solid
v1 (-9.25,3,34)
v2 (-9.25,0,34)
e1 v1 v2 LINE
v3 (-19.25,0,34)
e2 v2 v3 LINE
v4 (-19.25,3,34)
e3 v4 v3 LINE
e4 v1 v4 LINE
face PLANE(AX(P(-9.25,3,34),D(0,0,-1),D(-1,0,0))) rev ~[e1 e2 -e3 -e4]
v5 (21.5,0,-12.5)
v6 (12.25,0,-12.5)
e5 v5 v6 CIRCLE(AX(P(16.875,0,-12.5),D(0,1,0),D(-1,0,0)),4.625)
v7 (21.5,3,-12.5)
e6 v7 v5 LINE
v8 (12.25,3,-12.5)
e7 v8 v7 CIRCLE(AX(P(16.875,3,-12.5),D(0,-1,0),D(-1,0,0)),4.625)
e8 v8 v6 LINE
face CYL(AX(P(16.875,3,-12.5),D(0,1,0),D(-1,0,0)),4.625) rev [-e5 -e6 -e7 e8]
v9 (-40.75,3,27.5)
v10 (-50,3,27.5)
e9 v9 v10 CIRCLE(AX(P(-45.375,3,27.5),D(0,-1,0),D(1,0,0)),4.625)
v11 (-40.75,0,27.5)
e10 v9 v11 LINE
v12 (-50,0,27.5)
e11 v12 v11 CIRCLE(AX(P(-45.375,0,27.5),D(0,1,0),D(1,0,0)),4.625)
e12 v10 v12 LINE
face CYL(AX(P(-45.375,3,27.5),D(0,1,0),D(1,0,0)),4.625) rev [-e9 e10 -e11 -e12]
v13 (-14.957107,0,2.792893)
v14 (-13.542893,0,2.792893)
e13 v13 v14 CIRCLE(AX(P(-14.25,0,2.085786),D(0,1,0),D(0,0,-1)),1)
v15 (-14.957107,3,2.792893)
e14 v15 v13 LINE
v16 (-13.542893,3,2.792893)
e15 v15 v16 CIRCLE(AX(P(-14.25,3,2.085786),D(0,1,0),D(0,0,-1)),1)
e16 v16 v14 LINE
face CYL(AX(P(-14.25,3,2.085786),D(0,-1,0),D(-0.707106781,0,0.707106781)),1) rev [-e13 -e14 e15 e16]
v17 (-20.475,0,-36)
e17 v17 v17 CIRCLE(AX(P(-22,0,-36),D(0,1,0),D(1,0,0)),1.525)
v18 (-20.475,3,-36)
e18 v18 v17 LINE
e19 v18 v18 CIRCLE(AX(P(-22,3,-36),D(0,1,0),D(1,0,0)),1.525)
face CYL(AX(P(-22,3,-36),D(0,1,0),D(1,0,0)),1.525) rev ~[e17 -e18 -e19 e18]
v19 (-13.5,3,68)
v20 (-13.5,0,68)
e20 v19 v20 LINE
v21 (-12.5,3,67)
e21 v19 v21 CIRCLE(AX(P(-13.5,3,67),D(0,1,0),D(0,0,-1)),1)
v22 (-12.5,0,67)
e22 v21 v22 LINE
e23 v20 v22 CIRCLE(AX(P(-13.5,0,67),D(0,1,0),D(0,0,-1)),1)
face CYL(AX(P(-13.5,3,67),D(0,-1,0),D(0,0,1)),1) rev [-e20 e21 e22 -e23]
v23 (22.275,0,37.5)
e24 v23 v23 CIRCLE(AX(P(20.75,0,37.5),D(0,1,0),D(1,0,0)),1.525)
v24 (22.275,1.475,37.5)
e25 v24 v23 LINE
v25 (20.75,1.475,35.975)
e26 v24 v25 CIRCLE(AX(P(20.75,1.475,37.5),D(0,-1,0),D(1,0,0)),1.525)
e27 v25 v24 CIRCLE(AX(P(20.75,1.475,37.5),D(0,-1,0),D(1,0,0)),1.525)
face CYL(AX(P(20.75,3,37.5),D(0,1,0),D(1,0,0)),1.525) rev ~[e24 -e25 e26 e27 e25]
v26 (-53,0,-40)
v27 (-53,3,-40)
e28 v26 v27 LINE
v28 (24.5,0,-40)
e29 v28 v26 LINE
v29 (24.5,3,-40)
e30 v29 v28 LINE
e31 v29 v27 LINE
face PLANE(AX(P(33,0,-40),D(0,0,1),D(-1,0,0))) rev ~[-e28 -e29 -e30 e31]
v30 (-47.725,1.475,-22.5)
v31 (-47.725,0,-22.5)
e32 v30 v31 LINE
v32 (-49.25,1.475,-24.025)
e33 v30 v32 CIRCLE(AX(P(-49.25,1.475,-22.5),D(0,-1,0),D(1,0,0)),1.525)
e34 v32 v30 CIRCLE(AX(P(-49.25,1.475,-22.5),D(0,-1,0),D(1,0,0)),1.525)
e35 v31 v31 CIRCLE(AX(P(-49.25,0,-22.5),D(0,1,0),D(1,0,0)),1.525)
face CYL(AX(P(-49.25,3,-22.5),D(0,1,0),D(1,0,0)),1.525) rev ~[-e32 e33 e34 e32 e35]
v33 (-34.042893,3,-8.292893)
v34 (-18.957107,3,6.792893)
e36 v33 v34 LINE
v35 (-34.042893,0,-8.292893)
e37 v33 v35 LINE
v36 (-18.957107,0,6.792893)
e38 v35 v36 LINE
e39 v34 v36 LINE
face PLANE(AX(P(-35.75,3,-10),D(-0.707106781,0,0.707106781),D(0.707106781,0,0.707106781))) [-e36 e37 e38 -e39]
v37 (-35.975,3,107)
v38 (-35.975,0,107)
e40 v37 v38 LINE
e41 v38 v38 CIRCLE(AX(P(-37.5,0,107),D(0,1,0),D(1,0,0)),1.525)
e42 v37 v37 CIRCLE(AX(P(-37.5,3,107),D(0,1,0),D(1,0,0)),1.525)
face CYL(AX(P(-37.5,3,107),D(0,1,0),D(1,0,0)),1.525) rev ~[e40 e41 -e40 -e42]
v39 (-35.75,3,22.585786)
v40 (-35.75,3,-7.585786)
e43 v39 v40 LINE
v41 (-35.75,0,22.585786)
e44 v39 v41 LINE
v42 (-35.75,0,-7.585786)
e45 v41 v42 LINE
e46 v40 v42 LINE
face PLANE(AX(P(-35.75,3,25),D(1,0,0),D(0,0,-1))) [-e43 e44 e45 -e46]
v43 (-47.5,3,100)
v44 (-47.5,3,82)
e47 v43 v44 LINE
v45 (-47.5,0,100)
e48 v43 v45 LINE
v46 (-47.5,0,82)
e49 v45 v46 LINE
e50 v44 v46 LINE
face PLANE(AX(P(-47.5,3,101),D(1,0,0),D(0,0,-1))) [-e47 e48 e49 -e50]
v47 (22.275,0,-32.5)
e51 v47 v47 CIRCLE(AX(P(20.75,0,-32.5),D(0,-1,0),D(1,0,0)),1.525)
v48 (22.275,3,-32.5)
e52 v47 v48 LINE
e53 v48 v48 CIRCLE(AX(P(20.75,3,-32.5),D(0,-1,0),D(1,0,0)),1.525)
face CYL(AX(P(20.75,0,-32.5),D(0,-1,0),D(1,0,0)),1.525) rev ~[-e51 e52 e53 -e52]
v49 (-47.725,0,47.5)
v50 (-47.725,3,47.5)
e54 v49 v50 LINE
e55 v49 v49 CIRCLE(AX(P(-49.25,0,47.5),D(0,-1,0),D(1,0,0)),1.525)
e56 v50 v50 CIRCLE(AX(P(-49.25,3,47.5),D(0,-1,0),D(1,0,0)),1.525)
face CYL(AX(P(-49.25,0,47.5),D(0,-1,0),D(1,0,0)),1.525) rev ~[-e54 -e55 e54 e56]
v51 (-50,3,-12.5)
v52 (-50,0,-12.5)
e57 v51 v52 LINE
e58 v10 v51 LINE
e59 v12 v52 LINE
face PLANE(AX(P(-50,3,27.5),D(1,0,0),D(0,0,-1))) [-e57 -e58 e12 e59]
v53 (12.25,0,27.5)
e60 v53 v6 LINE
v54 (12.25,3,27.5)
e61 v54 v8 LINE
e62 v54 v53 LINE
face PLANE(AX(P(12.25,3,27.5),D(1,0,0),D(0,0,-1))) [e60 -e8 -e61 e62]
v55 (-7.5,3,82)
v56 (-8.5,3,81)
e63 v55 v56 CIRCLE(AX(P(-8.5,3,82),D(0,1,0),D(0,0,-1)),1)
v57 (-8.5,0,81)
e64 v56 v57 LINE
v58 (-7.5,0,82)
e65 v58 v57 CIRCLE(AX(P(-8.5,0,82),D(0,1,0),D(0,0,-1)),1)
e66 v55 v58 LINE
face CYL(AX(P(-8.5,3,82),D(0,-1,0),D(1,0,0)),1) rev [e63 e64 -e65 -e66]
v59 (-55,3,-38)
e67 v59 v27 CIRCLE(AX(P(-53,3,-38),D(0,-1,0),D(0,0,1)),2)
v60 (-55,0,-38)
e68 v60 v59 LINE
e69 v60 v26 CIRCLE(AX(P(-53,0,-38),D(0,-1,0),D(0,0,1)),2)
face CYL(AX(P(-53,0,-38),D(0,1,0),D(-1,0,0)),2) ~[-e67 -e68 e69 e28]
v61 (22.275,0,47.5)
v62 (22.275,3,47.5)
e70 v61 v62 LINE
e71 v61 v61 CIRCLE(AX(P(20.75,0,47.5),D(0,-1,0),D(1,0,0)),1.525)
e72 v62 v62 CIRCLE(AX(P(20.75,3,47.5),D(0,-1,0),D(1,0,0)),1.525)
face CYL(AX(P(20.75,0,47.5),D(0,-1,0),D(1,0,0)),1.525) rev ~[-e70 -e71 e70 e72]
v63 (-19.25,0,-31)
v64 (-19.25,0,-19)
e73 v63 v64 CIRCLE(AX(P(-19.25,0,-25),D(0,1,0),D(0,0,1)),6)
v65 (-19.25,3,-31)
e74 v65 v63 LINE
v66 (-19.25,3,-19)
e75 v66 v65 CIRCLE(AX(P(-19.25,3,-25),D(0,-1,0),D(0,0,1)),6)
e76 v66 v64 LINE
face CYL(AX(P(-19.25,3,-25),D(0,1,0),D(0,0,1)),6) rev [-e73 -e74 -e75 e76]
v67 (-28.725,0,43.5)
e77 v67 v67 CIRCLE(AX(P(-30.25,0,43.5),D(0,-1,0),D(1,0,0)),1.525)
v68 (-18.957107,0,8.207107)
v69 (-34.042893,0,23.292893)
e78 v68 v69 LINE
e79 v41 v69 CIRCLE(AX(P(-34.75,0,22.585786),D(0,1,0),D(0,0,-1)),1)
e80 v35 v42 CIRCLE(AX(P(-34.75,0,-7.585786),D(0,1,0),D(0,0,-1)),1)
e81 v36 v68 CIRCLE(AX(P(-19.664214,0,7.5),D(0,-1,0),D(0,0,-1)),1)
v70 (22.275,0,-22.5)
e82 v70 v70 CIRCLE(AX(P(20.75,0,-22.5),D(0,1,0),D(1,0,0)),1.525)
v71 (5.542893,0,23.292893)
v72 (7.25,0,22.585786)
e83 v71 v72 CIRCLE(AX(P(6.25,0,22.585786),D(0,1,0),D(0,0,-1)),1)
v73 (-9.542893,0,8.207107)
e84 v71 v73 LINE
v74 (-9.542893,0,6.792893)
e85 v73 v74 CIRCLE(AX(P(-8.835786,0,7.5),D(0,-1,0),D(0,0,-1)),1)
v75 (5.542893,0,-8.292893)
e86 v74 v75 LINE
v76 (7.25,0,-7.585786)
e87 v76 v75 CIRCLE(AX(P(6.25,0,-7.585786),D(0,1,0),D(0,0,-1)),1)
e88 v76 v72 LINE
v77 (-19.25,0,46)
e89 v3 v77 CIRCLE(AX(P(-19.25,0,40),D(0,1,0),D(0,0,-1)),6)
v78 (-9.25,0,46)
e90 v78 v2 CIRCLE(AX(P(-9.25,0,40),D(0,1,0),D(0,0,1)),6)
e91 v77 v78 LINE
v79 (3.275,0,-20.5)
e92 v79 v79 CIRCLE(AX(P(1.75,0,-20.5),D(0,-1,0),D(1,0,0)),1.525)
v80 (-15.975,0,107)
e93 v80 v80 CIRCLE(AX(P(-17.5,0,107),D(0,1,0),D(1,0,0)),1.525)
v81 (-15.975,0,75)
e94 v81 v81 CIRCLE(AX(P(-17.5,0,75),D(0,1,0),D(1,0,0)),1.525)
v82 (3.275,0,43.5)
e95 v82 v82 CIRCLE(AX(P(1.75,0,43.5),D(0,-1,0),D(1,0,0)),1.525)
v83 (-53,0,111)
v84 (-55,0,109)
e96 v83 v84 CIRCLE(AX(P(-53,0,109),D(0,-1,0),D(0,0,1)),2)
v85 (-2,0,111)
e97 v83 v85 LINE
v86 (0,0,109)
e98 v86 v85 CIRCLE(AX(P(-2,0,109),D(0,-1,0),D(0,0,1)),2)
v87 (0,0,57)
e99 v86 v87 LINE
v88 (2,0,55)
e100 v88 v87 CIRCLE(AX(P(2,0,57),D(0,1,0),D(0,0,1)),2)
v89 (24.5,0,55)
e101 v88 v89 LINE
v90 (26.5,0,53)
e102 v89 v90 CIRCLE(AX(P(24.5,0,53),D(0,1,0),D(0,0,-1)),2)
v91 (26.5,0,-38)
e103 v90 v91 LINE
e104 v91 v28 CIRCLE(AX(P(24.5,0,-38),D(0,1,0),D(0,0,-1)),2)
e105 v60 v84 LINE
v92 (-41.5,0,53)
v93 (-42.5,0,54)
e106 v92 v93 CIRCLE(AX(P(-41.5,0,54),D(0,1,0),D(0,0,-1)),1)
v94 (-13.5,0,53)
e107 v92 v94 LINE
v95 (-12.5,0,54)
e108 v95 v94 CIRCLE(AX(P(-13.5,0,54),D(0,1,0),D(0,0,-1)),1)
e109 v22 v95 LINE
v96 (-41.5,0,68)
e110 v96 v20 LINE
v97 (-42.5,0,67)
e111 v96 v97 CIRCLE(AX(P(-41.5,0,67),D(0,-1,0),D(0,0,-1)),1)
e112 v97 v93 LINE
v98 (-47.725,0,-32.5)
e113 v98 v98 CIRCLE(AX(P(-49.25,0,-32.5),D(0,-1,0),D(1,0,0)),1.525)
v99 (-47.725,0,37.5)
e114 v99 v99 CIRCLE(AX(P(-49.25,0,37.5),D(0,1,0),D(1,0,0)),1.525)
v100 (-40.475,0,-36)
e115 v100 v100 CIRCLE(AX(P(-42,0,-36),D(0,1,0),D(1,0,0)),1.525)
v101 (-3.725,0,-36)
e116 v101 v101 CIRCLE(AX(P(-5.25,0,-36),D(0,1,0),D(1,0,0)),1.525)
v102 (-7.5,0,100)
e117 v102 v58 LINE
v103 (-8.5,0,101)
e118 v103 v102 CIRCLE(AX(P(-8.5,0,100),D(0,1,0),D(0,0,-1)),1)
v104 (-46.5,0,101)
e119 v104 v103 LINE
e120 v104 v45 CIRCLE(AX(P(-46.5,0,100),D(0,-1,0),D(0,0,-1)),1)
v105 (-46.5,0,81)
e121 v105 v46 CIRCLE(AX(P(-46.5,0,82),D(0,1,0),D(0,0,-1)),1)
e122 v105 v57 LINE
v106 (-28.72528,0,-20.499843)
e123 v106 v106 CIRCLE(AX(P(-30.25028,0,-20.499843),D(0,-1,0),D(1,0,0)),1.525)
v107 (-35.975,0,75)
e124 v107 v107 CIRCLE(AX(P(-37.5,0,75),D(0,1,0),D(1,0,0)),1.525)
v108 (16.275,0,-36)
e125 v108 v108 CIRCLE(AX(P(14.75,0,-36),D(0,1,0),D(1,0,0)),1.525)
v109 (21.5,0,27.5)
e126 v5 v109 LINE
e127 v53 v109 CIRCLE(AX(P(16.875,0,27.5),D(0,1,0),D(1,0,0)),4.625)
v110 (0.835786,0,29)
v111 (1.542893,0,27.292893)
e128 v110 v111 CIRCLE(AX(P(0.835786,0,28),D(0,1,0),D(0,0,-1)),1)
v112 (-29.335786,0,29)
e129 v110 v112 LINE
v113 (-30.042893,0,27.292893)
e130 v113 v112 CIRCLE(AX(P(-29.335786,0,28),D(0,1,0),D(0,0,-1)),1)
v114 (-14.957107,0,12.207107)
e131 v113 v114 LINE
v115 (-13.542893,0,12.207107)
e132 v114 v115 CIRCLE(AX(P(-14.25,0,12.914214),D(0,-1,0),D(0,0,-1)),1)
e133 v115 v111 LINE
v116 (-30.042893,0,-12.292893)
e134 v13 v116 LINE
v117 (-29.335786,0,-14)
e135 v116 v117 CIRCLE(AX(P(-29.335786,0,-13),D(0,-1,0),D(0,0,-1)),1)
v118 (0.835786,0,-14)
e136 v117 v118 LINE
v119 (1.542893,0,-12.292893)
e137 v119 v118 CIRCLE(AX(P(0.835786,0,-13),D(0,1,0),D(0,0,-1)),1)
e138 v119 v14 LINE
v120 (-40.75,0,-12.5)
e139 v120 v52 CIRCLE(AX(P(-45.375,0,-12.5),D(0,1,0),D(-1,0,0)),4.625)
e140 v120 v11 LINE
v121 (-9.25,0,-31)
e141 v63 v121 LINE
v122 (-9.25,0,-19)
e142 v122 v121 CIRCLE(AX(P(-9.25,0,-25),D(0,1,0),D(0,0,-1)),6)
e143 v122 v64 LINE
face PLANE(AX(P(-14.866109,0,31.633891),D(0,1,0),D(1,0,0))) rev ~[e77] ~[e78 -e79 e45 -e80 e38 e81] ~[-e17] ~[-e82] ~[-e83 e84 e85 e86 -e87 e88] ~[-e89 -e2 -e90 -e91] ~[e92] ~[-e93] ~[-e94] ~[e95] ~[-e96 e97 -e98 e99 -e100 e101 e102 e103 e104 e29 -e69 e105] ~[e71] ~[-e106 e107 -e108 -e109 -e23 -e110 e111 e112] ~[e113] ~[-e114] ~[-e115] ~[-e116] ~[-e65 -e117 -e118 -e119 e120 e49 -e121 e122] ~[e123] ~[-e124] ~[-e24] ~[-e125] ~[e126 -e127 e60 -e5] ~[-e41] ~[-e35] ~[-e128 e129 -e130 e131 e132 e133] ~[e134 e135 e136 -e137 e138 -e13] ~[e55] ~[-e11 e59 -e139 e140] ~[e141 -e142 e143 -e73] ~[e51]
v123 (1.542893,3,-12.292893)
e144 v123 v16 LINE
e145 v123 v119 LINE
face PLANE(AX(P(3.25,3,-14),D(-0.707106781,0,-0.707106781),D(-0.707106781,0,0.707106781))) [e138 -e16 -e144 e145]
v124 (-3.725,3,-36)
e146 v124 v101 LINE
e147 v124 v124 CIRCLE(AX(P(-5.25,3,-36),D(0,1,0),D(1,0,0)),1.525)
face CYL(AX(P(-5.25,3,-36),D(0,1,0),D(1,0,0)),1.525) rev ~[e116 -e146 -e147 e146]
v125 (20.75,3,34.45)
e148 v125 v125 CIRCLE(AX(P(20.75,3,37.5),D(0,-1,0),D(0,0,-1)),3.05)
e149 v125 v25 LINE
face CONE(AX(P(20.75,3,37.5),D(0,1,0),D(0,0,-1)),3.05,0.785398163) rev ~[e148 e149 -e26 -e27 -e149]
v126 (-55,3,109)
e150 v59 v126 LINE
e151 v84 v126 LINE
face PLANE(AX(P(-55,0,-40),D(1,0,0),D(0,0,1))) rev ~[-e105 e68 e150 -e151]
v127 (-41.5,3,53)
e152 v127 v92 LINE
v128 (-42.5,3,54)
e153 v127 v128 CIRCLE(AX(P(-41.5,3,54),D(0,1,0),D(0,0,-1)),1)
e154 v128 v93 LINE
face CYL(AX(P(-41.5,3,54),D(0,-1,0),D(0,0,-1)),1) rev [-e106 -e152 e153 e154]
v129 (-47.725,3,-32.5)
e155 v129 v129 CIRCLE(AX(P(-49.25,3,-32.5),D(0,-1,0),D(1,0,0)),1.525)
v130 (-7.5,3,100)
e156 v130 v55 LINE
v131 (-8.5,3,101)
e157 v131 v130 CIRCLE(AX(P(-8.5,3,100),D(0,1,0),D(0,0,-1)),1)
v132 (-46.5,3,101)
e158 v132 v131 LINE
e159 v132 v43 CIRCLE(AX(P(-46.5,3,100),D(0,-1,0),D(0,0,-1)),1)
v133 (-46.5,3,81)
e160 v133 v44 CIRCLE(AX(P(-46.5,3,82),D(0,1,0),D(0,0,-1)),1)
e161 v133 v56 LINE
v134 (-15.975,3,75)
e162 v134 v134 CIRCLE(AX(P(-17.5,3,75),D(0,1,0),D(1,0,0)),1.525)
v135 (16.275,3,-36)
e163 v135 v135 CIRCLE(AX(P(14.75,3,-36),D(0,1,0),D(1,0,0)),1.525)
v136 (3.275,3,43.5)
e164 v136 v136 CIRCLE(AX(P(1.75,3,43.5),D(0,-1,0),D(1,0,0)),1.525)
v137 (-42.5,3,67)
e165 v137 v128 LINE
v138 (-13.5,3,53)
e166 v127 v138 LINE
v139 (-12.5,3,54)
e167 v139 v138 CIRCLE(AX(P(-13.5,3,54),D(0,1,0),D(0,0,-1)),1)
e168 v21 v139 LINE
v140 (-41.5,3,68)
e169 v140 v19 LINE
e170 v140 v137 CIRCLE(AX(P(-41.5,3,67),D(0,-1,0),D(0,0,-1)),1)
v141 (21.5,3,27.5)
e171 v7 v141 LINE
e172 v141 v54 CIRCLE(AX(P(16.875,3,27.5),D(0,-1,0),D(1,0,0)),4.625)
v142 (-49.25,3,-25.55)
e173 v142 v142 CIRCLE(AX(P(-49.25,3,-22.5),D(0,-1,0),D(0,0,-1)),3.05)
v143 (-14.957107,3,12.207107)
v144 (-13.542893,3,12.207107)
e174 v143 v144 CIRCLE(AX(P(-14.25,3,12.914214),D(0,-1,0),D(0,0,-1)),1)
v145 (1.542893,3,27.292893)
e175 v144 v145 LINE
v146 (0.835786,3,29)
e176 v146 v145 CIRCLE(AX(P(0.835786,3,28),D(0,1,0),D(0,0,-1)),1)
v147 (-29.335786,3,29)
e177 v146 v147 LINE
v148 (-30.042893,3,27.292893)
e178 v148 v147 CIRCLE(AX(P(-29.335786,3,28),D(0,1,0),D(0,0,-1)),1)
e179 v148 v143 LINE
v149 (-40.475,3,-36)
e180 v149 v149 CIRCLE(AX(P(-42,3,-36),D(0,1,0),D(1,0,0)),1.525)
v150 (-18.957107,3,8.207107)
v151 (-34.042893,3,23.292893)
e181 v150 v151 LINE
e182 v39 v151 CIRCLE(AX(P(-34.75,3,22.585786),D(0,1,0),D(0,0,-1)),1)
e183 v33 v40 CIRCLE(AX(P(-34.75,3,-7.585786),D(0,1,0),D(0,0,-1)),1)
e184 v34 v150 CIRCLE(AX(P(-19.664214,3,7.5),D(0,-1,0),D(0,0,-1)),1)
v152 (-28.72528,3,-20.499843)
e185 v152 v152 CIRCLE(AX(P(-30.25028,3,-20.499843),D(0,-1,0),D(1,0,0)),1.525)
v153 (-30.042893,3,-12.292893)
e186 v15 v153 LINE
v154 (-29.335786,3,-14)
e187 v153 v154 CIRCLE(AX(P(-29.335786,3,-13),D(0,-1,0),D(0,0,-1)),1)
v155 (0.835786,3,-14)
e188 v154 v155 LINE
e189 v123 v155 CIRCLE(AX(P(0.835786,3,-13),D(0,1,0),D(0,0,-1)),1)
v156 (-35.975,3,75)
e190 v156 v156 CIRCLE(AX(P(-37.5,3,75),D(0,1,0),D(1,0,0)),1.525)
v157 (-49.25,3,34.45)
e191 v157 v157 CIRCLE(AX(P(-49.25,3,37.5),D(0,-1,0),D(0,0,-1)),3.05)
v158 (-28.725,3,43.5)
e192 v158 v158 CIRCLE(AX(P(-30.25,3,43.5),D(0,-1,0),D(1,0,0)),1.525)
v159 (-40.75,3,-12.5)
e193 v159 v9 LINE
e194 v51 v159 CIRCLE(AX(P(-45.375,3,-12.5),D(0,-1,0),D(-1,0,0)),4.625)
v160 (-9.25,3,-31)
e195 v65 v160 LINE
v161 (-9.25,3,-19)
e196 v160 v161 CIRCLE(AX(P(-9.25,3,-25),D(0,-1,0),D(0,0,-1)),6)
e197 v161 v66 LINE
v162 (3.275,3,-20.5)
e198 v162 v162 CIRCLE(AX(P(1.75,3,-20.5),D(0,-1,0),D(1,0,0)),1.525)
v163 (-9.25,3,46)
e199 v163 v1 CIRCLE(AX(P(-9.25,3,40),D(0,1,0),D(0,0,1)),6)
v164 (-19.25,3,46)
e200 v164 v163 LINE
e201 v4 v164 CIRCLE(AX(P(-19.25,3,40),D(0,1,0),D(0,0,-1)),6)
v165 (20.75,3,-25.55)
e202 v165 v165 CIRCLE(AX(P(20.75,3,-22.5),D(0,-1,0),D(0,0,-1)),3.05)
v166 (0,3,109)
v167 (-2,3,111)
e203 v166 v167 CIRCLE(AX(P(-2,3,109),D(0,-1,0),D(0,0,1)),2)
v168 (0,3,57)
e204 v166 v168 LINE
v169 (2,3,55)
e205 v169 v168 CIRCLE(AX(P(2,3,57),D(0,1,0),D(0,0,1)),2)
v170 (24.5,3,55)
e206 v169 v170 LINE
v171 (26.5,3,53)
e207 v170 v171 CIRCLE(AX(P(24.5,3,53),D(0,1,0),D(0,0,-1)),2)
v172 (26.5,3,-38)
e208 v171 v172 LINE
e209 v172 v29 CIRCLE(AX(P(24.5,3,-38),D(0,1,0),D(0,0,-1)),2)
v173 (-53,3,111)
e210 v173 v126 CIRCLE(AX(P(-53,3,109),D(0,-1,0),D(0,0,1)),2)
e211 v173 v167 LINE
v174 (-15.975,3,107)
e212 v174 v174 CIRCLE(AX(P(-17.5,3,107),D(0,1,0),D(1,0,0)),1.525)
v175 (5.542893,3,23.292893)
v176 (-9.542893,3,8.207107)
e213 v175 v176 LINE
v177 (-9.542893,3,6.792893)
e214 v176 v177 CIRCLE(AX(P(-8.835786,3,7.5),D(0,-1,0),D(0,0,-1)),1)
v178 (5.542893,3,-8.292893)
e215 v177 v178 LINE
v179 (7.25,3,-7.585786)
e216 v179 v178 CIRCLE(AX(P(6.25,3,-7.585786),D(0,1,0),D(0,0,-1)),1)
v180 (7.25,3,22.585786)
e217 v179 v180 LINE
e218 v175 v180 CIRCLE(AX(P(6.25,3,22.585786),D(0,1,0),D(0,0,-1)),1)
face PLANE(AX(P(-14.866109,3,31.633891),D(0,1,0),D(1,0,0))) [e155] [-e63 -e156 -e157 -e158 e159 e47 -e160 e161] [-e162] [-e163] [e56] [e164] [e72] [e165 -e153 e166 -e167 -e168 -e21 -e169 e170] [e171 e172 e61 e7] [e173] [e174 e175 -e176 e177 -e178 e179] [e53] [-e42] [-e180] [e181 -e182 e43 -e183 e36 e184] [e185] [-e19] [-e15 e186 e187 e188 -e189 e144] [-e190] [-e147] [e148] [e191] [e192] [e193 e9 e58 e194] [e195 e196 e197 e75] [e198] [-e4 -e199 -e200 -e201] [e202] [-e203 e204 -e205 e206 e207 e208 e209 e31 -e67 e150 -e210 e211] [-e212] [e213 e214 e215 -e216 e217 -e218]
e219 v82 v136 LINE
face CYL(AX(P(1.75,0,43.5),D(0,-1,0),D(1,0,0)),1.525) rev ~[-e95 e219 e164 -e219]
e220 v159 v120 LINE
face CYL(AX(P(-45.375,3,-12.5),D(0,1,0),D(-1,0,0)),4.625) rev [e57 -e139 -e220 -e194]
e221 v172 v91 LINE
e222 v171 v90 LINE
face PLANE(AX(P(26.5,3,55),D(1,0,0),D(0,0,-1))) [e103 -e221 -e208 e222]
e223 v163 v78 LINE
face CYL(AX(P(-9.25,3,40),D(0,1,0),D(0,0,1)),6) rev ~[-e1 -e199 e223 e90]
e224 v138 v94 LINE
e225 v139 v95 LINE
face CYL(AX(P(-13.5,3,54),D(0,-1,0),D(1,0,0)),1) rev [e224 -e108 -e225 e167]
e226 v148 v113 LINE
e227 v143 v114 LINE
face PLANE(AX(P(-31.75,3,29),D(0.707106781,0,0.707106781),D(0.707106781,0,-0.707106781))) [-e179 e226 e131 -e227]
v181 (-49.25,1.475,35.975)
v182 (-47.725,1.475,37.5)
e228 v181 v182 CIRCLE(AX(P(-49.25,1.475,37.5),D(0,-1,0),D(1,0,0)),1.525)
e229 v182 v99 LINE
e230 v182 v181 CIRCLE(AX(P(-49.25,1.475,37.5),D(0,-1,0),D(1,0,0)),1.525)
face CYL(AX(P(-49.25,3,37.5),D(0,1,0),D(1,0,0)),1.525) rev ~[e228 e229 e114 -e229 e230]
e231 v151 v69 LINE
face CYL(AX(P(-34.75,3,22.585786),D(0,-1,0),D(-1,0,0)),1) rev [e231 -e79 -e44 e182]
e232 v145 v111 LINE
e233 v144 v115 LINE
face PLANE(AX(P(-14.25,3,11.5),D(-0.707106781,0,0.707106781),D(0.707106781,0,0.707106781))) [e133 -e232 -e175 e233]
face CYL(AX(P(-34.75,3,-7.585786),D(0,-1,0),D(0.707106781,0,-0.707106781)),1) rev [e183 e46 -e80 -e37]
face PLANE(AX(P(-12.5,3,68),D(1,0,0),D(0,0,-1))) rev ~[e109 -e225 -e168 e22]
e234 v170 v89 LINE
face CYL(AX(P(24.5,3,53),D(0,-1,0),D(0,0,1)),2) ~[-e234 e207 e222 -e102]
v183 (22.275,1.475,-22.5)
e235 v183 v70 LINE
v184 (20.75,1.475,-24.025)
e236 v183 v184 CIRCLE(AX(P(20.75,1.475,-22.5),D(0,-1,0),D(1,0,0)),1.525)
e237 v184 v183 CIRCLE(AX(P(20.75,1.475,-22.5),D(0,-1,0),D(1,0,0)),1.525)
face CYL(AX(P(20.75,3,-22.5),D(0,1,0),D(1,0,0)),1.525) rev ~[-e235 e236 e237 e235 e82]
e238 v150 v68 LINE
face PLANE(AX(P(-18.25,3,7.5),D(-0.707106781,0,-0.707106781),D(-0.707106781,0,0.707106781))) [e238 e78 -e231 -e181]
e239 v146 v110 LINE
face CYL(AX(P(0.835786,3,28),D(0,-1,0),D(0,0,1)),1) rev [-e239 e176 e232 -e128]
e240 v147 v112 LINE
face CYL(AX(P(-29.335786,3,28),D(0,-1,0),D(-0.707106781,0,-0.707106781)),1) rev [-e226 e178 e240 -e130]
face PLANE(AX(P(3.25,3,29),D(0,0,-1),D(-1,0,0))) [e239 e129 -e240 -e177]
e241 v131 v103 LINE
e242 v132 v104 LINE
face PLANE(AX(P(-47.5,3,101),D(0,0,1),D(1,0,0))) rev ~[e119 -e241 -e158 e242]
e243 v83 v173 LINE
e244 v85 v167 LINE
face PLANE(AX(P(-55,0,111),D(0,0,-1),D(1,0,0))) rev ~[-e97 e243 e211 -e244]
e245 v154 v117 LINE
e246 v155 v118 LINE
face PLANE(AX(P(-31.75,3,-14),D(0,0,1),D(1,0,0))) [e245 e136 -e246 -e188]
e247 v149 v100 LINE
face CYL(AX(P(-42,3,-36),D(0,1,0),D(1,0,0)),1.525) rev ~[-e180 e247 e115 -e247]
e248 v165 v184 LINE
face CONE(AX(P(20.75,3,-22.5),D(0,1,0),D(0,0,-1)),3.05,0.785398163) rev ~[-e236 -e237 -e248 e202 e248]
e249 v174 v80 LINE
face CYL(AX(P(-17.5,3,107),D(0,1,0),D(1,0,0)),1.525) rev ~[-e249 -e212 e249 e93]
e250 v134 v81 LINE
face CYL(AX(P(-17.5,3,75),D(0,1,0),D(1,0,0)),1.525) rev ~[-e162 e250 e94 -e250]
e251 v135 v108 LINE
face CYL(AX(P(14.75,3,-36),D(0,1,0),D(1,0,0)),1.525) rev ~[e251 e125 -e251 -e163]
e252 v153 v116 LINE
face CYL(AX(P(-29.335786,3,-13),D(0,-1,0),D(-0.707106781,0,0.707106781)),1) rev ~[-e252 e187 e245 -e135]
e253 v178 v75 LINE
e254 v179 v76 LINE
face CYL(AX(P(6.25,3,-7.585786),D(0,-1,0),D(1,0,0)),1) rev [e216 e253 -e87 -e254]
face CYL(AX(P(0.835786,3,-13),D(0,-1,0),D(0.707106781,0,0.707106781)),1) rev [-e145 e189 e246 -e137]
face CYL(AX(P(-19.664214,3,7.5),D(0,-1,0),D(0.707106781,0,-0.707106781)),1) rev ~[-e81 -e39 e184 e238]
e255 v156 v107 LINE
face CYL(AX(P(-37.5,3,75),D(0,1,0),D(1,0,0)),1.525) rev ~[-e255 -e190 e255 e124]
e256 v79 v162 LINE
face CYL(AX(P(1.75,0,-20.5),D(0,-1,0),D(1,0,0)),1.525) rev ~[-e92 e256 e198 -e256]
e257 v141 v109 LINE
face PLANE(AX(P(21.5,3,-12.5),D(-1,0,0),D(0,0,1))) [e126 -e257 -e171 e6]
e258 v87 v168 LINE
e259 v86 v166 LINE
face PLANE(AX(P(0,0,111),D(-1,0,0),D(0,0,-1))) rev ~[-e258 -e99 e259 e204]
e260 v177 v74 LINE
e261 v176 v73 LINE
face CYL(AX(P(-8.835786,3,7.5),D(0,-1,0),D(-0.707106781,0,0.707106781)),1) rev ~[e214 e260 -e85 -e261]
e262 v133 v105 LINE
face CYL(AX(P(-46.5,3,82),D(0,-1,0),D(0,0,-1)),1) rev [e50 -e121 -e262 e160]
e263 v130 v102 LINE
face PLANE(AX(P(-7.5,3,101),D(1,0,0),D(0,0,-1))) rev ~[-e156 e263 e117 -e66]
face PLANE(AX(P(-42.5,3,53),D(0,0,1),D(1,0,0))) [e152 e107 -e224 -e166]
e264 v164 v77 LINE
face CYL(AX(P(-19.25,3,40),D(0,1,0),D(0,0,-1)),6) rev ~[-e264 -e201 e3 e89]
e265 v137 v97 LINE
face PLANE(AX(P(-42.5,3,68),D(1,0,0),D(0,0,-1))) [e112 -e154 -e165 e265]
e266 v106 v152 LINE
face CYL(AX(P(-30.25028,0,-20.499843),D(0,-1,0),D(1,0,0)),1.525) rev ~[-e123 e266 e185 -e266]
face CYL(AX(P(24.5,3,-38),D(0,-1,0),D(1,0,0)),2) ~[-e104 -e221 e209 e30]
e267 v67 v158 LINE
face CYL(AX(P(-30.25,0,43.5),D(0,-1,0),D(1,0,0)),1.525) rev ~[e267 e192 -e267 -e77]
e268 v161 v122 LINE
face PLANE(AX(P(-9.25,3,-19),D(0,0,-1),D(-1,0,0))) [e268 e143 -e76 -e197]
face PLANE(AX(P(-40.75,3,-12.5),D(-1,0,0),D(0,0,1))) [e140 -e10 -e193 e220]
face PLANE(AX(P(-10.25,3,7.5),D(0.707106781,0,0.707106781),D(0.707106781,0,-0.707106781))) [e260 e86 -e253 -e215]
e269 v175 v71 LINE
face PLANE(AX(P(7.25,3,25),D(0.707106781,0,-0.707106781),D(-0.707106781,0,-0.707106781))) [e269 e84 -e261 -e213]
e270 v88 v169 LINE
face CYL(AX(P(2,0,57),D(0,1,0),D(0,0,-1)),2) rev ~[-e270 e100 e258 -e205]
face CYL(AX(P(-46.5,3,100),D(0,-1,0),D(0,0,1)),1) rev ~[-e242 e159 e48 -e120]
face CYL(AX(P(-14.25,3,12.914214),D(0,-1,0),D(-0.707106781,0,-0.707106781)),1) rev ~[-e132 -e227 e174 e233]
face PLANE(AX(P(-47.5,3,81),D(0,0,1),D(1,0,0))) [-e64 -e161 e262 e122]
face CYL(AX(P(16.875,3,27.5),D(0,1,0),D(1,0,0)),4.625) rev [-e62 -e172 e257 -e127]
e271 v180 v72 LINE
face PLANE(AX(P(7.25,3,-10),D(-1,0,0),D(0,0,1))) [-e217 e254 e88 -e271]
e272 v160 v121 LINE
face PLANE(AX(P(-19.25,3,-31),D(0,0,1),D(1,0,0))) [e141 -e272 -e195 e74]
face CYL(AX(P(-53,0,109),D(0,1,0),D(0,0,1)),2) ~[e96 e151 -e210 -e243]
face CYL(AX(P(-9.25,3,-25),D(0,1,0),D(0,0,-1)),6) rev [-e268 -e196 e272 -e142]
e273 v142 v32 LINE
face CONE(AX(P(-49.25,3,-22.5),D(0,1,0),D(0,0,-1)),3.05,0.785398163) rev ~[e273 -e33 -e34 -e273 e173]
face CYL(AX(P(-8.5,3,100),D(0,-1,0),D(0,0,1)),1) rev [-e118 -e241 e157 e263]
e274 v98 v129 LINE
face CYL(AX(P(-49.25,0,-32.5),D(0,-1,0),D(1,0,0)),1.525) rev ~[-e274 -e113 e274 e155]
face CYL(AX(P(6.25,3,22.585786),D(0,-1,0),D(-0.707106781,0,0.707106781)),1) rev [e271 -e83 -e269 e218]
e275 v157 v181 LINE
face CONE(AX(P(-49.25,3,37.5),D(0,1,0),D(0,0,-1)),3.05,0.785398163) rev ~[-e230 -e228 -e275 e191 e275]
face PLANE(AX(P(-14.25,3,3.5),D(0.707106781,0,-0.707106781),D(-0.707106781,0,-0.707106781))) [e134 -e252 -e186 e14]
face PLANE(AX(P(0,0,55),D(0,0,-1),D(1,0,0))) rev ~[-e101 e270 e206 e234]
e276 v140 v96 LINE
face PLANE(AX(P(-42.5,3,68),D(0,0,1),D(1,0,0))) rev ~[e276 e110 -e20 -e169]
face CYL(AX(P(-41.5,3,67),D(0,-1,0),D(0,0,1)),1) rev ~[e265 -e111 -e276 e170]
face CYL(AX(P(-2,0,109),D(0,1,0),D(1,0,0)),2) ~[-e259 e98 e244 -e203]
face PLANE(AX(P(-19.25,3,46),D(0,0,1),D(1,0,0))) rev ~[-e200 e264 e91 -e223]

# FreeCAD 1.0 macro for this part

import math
import FreeCAD as App
import Part
import Sketcher
from FreeCAD import Vector
Q = App.Units.Quantity


def edges_at(feature, points):
    """Names of the edges that pass closest to the given points."""
    edges = feature.Shape.Edges
    near = lambda p: min(range(len(edges)), key=lambda i: edges[i].distToShape(Part.Vertex(*p))[0])
    return sorted({f"Edge{near(p) + 1}" for p in points})


def add_polygon(sketch, points):
    """Adds a closed chain of lines whose ends are joined by coincident constraints."""
    first, n = sketch.GeometryCount, len(points)
    for a, b in zip(points, points[1:] + points[:1]):
        sketch.addGeometry(Part.LineSegment(App.Vector(*a, 0), App.Vector(*b, 0)), False)
    for i in range(n):
        sketch.addConstraint(Sketcher.Constraint("Coincident", first + i, 2, first + (i + 1) % n, 1))

doc = App.newDocument("Part")
body = doc.addObject("PartDesign::Body", "Body")

# Sketch on XZ plane
sketch1 = body.newObject("Sketcher::SketchObject", "Sketch")
sketch1.AttachmentSupport = (doc.getObject("XZ_Plane"), [""])
sketch1.MapMode = "FlatFace"
add_polygon(sketch1, [(33, 55), (33, -40), (-55, -40), (-55, 111), (0, 111), (0, 55)])  # lines 0-5
sketch1.addConstraint([
    Sketcher.Constraint("Vertical", 0),
    Sketcher.Constraint("Horizontal", 1),
    Sketcher.Constraint("Vertical", 2),
    Sketcher.Constraint("Horizontal", 3),
    Sketcher.Constraint("Vertical", 4),
    Sketcher.Constraint("Horizontal", 5),
    Sketcher.Constraint("PointOnObject", 3, 2, -2),
    Sketcher.Constraint("DistanceX", 1, 2, 1, 1, Q("88 mm")),
    Sketcher.Constraint("DistanceX", 3, 1, 3, 2, Q("55 mm")),
    Sketcher.Constraint("DistanceY", 0, 2, 0, 1, Q("95 mm")),
    Sketcher.Constraint("DistanceY", 2, 1, 2, 2, Q("151 mm")),
    Sketcher.Constraint("DistanceY", 0, 2, -1, 1, Q("40 mm")),
])
pad1 = body.newObject("PartDesign::Pad", "Pad")
pad1.Profile = sketch1
pad1.Length = 3
pad1.Reversed = True

# Sketch on XZ plane
sketch2 = body.newObject("Sketcher::SketchObject", "Sketch001")
sketch2.AttachmentSupport = (doc.getObject("XZ_Plane"), [""])
sketch2.MapMode = "FlatFace"
sketch2.AttachmentOffset = App.Placement(Vector(0, 0, -3), App.Rotation())
sketch2.addGeometry([
    Part.Circle(Vector(-37.5, 107, 0), Vector(0, 0, 1), 1.5),  # 0
    Part.Circle(Vector(-17.5, 107, 0), Vector(0, 0, 1), 1.5),  # 1
    Part.Circle(Vector(-37.5, 75, 0), Vector(0, 0, 1), 1.5),  # 2
    Part.Circle(Vector(-17.5, 75, 0), Vector(0, 0, 1), 1.5),  # 3
    Part.Circle(Vector(-42, -36, 0), Vector(0, 0, 1), 1.5),  # 4
    Part.Circle(Vector(-22, -36, 0), Vector(0, 0, 1), 1.5),  # 5
    Part.Circle(Vector(-5.2, -36, 0), Vector(0, 0, 1), 1.5),  # 6
    Part.Circle(Vector(14.8, -36, 0), Vector(0, 0, 1), 1.5),  # 7
], False)
sketch2.addConstraint([
    Sketcher.Constraint("Equal", 0, 1),
    Sketcher.Constraint("Equal", 1, 2),
    Sketcher.Constraint("Equal", 2, 3),
    Sketcher.Constraint("Equal", 3, 4),
    Sketcher.Constraint("Equal", 4, 5),
    Sketcher.Constraint("Equal", 5, 6),
    Sketcher.Constraint("Equal", 6, 7),
    Sketcher.Constraint("Horizontal", 0, 3, 1, 3),
    Sketcher.Constraint("Horizontal", 2, 3, 3, 3),
    Sketcher.Constraint("Horizontal", 4, 3, 5, 3),
    Sketcher.Constraint("Horizontal", 5, 3, 6, 3),
    Sketcher.Constraint("Horizontal", 6, 3, 7, 3),
    Sketcher.Constraint("Vertical", 0, 3, 2, 3),
    Sketcher.Constraint("Vertical", 1, 3, 3, 3),
    Sketcher.Constraint("Diameter", 0, Q("3.05 mm")),
    Sketcher.Constraint("DistanceY", -1, 1, 0, 3, Q("107 mm")),
    Sketcher.Constraint("DistanceY", -1, 1, 2, 3, Q("75 mm")),
    Sketcher.Constraint("DistanceX", 4, 3, -1, 1, Q("42 mm")),
    Sketcher.Constraint("DistanceY", 4, 3, -1, 1, Q("36 mm")),
    Sketcher.Constraint("DistanceX", 5, 3, -1, 1, Q("22 mm")),
    Sketcher.Constraint("DistanceX", 0, 3, 1, 3, Q("20 mm")),
    Sketcher.Constraint("DistanceX", 6, 3, 7, 3, Q("20 mm")),
    Sketcher.Constraint("DistanceX", 0, 3, -1, 1, Q("37.5 mm")),
    Sketcher.Constraint("DistanceX", 6, 3, -1, 1, Q("5.25 mm")),
])
pocket1 = body.newObject("PartDesign::Pocket", "Pocket")
pocket1.Profile = sketch2
pocket1.Type = "ThroughAll"
pocket1.Reversed = True

# Sketch on XZ plane
sketch3 = body.newObject("Sketcher::SketchObject", "Sketch002")
sketch3.AttachmentSupport = (doc.getObject("XZ_Plane"), [""])
sketch3.MapMode = "FlatFace"
sketch3.AttachmentOffset = App.Placement(Vector(0, 0, -3), App.Rotation())
add_polygon(sketch3, [(26, -40), (26, 55), (33, 55), (33, -40)])  # lines 0-3
sketch3.addConstraint([
    Sketcher.Constraint("Vertical", 0),
    Sketcher.Constraint("Horizontal", 1),
    Sketcher.Constraint("Vertical", 2),
    Sketcher.Constraint("Horizontal", 3),
    Sketcher.Constraint("DistanceY", 0, 1, 0, 2, Q("95 mm")),
    Sketcher.Constraint("DistanceX", 1, 1, 1, 2, Q("6.5 mm")),
    Sketcher.Constraint("DistanceY", -1, 1, 0, 2, Q("55 mm")),
    Sketcher.Constraint("DistanceX", -1, 1, 1, 2, Q("33 mm")),
])
pocket2 = body.newObject("PartDesign::Pocket", "Pocket001")
pocket2.Profile = sketch3
pocket2.Type = "ThroughAll"
pocket2.Reversed = True
doc.recompute()

fillet = body.newObject("PartDesign::Fillet", "Fillet")
fillet.Base = (pocket2, edges_at(pocket2, [
    (0, 1.5, 111),
    (-55, 1.5, 111),
    (-55, 1.5, -40),
    (0, 1.5, 55),
    (26.5, 1.5, 55),
    (26.5, 1.5, -40),
]))
fillet.Radius = 2

# Sketch on XZ plane
sketch4 = body.newObject("Sketcher::SketchObject", "Sketch003")
sketch4.AttachmentSupport = (doc.getObject("XZ_Plane"), [""])
sketch4.MapMode = "FlatFace"
sketch4.addGeometry([
    Part.Circle(Vector(-49.2, 47.5, 0), Vector(0, 0, 1), 1.5),
    Part.Circle(Vector(-49.2, -32.5, 0), Vector(0, 0, 1), 1.5),
    Part.Circle(Vector(20.8, -32.5, 0), Vector(0, 0, 1), 1.5),
    Part.Circle(Vector(20.8, 47.5, 0), Vector(0, 0, 1), 1.5),
], False)
sketch4.addConstraint([
    Sketcher.Constraint("Equal", 0, 1),
    Sketcher.Constraint("Equal", 1, 2),
    Sketcher.Constraint("Equal", 2, 3),
    Sketcher.Constraint("Horizontal", 1, 3, 2, 3),
    Sketcher.Constraint("Horizontal", 0, 3, 3, 3),
    Sketcher.Constraint("Vertical", 0, 3, 1, 3),
    Sketcher.Constraint("Vertical", 2, 3, 3, 3),
    Sketcher.Constraint("Diameter", 0, Q("3.05 mm")),
    Sketcher.Constraint("DistanceY", 1, 3, 0, 3, Q("80 mm")),
    Sketcher.Constraint("DistanceX", 1, 3, 2, 3, Q("70 mm")),
    Sketcher.Constraint("DistanceY", -1, 1, 0, 3, Q("47.5 mm")),
    Sketcher.Constraint("DistanceX", 0, 3, -1, 1, Q("49.25 mm")),
])
pocket3 = body.newObject("PartDesign::Pocket", "Pocket002")
pocket3.Profile = sketch4
pocket3.Length = 10

# Sketch on XZ plane
sketch5 = body.newObject("Sketcher::SketchObject", "Sketch004")
sketch5.AttachmentSupport = (doc.getObject("XZ_Plane"), [""])
sketch5.MapMode = "FlatFace"
sketch5.addGeometry([
    Part.Circle(Vector(-30.2, 43.5, 0), Vector(0, 0, 1), 1.5),
    Part.Circle(Vector(1.8, 43.5, 0), Vector(0, 0, 1), 1.5),
    Part.Circle(Vector(-30.3, -20.5, 0), Vector(0, 0, 1), 1.5),
    Part.Circle(Vector(1.8, -20.5, 0), Vector(0, 0, 1), 1.5),
], False)
sketch5.addConstraint([
    Sketcher.Constraint("Equal", 0, 1),
    Sketcher.Constraint("Equal", 1, 2),
    Sketcher.Constraint("Equal", 2, 3),
    Sketcher.Constraint("Horizontal", 0, 3, 1, 3),
    Sketcher.Constraint("Vertical", 1, 3, 3, 3),
    Sketcher.Constraint("Diameter", 0, Q("3.05 mm")),
    Sketcher.Constraint("DistanceX", 0, 3, 1, 3, Q("32 mm")),
    Sketcher.Constraint("DistanceY", 3, 3, 1, 3, Q("64 mm")),
    Sketcher.Constraint("DistanceY", -1, 1, 0, 3, Q("43.5 mm")),
    Sketcher.Constraint("DistanceX", 0, 3, -1, 1, Q("30.25 mm")),
    Sketcher.Constraint("DistanceX", 2, 3, -1, 1, Q("30.25028 mm")),
    Sketcher.Constraint("DistanceY", 2, 3, -1, 1, Q("20.499843 mm")),
])
pocket4 = body.newObject("PartDesign::Pocket", "Pocket003")
pocket4.Profile = sketch5
pocket4.Length = 10

# Sketch on XZ plane
sketch6 = body.newObject("Sketcher::SketchObject", "Sketch005")
sketch6.AttachmentSupport = (doc.getObject("XZ_Plane"), [""])
sketch6.MapMode = "FlatFace"
sketch6.AttachmentOffset = App.Placement(Vector(0, 0, -3), App.Rotation())
add_polygon(sketch6, [(7, -10), (-10, 8), (7, 25)])  # lines 0-2
add_polygon(sketch6, [(3, -14), (-32, -14), (-14, 4)])  # lines 3-5
add_polygon(sketch6, [(3, 29), (-14, 12), (-32, 29)])  # lines 6-8
add_polygon(sketch6, [(-36, 25), (-18, 8), (-36, -10)])  # lines 9-11
sketch6.addConstraint([
    Sketcher.Constraint("Vertical", 2),
    Sketcher.Constraint("Horizontal", 3),
    Sketcher.Constraint("Horizontal", 8),
    Sketcher.Constraint("Vertical", 11),
    Sketcher.Constraint("Perpendicular", 0, 1),
    Sketcher.Constraint("Parallel", 1, 4),
    Sketcher.Constraint("Perpendicular", 4, 5),
    Sketcher.Constraint("Perpendicular", 5, 6),
    Sketcher.Constraint("Perpendicular", 6, 7),
    Sketcher.Constraint("Parallel", 7, 9),
    Sketcher.Constraint("Perpendicular", 9, 10),
    Sketcher.Constraint("Horizontal", 0, 2, 9, 2),
    Sketcher.Constraint("Horizontal", 2, 2, 10, 2),
    Sketcher.Constraint("Horizontal", 1, 2, 11, 2),
    Sketcher.Constraint("Vertical", 4, 2, 6, 2),
    Sketcher.Constraint("Vertical", 3, 2, 7, 2),
    Sketcher.Constraint("Equal", 8, 2),
    Sketcher.Constraint("DistanceX", 3, 2, 3, 1, Q("35 mm")),
    Sketcher.Constraint("DistanceY", -1, 1, 1, 2, Q("25 mm")),
    Sketcher.Constraint("DistanceY", 3, 2, -1, 1, Q("14 mm")),
    Sketcher.Constraint("DistanceY", -1, 1, 7, 2, Q("29 mm")),
    Sketcher.Constraint("DistanceX", 3, 2, 2, 2, Q("39 mm")),
    Sketcher.Constraint("DistanceX", 9, 2, 4, 2, Q("4 mm")),
    Sketcher.Constraint("DistanceX", 0, 2, -1, 1, Q("10.25 mm")),
])
pocket5 = body.newObject("PartDesign::Pocket", "Pocket004")
pocket5.Profile = sketch6
pocket5.Type = "ThroughAll"
pocket5.Midplane = True
doc.recompute()

fillet2 = body.newObject("PartDesign::Fillet", "Fillet001")
fillet2.Base = (pocket5, edges_at(pocket5, [
    (3.25, 1.5, 29),
    (-31.75, 1.5, 29),
    (-14.25, 1.5, 11.5),
    (7.25, 1.5, -10),
    (7.25, 1.5, 25),
    (-10.25, 1.5, 7.5),
    (-35.75, 1.5, 25),
    (-35.75, 1.5, -10),
    (-18.25, 1.5, 7.5),
    (-14.25, 1.5, 3.5),
    (-31.75, 1.5, -14),
    (3.25, 1.5, -14),
]))
fillet2.Radius = 1

# Sketch on XZ plane
sketch7 = body.newObject("Sketcher::SketchObject", "Sketch006")
sketch7.AttachmentSupport = (doc.getObject("XZ_Plane"), [""])
sketch7.MapMode = "FlatFace"
sketch7.AttachmentOffset = App.Placement(Vector(0, 0, -3), App.Rotation())
add_polygon(sketch7, [(-48, 81), (-48, 101), (-8, 101), (-8, 81)])  # lines 0-3
add_polygon(sketch7, [(-42, 53), (-42, 68), (-12, 68), (-12, 53)])  # lines 4-7
sketch7.addConstraint([
    Sketcher.Constraint("Vertical", 0),
    Sketcher.Constraint("Horizontal", 1),
    Sketcher.Constraint("Vertical", 2),
    Sketcher.Constraint("Horizontal", 3),
    Sketcher.Constraint("Vertical", 4),
    Sketcher.Constraint("Horizontal", 5),
    Sketcher.Constraint("Vertical", 6),
    Sketcher.Constraint("Horizontal", 7),
    Sketcher.Constraint("DistanceX", 1, 1, 1, 2, Q("40 mm")),
    Sketcher.Constraint("DistanceX", 5, 1, 5, 2, Q("30 mm")),
    Sketcher.Constraint("DistanceY", 0, 1, 0, 2, Q("20 mm")),
    Sketcher.Constraint("DistanceY", 4, 1, 4, 2, Q("15 mm")),
    Sketcher.Constraint("DistanceY", -1, 1, 0, 2, Q("101 mm")),
    Sketcher.Constraint("DistanceY", -1, 1, 4, 2, Q("68 mm")),
    Sketcher.Constraint("DistanceX", 3, 2, 4, 2, Q("5 mm")),
    Sketcher.Constraint("DistanceX", 0, 2, -1, 1, Q("47.5 mm")),
])
pocket6 = body.newObject("PartDesign::Pocket", "Pocket005")
pocket6.Profile = sketch7
pocket6.Type = "ThroughAll"
pocket6.Midplane = True
doc.recompute()

fillet3 = body.newObject("PartDesign::Fillet", "Fillet002")
fillet3.Base = (pocket6, edges_at(pocket6, [
    (-7.5, 1.5, 81),
    (-7.5, 1.5, 101),
    (-47.5, 1.5, 101),
    (-47.5, 1.5, 81),
    (-12.5, 1.5, 53),
    (-12.5, 1.5, 68),
    (-42.5, 1.5, 68),
    (-42.5, 1.5, 53),
]))
fillet3.Radius = 1

# Sketch on XZ plane
sketch8 = body.newObject("Sketcher::SketchObject", "Sketch007")
sketch8.AttachmentSupport = (doc.getObject("XZ_Plane"), [""])
sketch8.MapMode = "FlatFace"
sketch8.AttachmentOffset = App.Placement(Vector(0, 0, -3), App.Rotation())
sketch8.addGeometry([
    Part.LineSegment(Vector(-9, -31, 0), Vector(-19, -31, 0)),  # 0
    Part.ArcOfCircle(Part.Circle(Vector(-19, -25, 0), Vector(0, 0, 1), 6), math.radians(90), math.radians(270)),  # 1
    Part.LineSegment(Vector(-19, -19, 0), Vector(-9, -19, 0)),  # 2
    Part.ArcOfCircle(Part.Circle(Vector(-9, -25, 0), Vector(0, 0, 1), 6), math.radians(-90), math.radians(90)),  # 3
    Part.LineSegment(Vector(-19, 46, 0), Vector(-9, 46, 0)),  # 4
    Part.ArcOfCircle(Part.Circle(Vector(-9, 40, 0), Vector(0, 0, 1), 6), math.radians(-90), math.radians(90)),  # 5
    Part.LineSegment(Vector(-9, 34, 0), Vector(-19, 34, 0)),  # 6
    Part.ArcOfCircle(Part.Circle(Vector(-19, 40, 0), Vector(0, 0, 1), 6), math.radians(90), math.radians(270)),  # 7
], False)
sketch8.addConstraint([
    Sketcher.Constraint("Tangent", 0, 2, 1, 2),
    Sketcher.Constraint("Tangent", 1, 1, 2, 1),
    Sketcher.Constraint("Tangent", 2, 2, 3, 2),
    Sketcher.Constraint("Tangent", 3, 1, 0, 1),
    Sketcher.Constraint("Tangent", 4, 2, 5, 2),
    Sketcher.Constraint("Tangent", 5, 1, 6, 1),
    Sketcher.Constraint("Tangent", 6, 2, 7, 2),
    Sketcher.Constraint("Tangent", 7, 1, 4, 1),
    Sketcher.Constraint("Horizontal", 0),
    Sketcher.Constraint("Horizontal", 2),
    Sketcher.Constraint("Horizontal", 4),
    Sketcher.Constraint("Horizontal", 6),
    Sketcher.Constraint("Equal", 3, 5),
    Sketcher.Constraint("Vertical", 3, 3, 5, 3),
    Sketcher.Constraint("Vertical", 1, 3, 7, 3),
    Sketcher.Constraint("Radius", 1, Q("6 mm")),
    Sketcher.Constraint("DistanceX", 0, 2, 0, 1, Q("10 mm")),
    Sketcher.Constraint("DistanceY", 1, 3, -1, 1, Q("25 mm")),
    Sketcher.Constraint("DistanceY", -1, 1, 5, 3, Q("40 mm")),
    Sketcher.Constraint("DistanceX", 1, 3, -1, 1, Q("19.25 mm")),
])
pocket7 = body.newObject("PartDesign::Pocket", "Pocket006")
pocket7.Profile = sketch8
pocket7.Type = "ThroughAll"
pocket7.Midplane = True

# Sketch on XZ plane
sketch9 = body.newObject("Sketcher::SketchObject", "Sketch008")
sketch9.AttachmentSupport = (doc.getObject("XZ_Plane"), [""])
sketch9.MapMode = "FlatFace"
sketch9.AttachmentOffset = App.Placement(Vector(0, 0, -3), App.Rotation())
sketch9.addGeometry([
    Part.Circle(Vector(-49.2, 37.5, 0), Vector(0, 0, 1), 1.5),
    Part.Circle(Vector(20.8, -22.5, 0), Vector(0, 0, 1), 1.5),
    Part.Circle(Vector(-49.2, -22.5, 0), Vector(0, 0, 1), 1.5),
    Part.Circle(Vector(20.8, 37.5, 0), Vector(0, 0, 1), 1.5),
], False)
sketch9.addConstraint([
    Sketcher.Constraint("Equal", 0, 1),
    Sketcher.Constraint("Equal", 1, 2),
    Sketcher.Constraint("Equal", 2, 3),
    Sketcher.Constraint("Horizontal", 1, 3, 2, 3),
    Sketcher.Constraint("Horizontal", 0, 3, 3, 3),
    Sketcher.Constraint("Vertical", 0, 3, 2, 3),
    Sketcher.Constraint("Vertical", 1, 3, 3, 3),
    Sketcher.Constraint("Diameter", 0, Q("3.05 mm")),
    Sketcher.Constraint("DistanceX", 0, 3, 1, 3, Q("70 mm")),
    Sketcher.Constraint("DistanceY", 1, 3, 0, 3, Q("60 mm")),
    Sketcher.Constraint("DistanceY", -1, 1, 0, 3, Q("37.5 mm")),
    Sketcher.Constraint("DistanceX", 0, 3, -1, 1, Q("49.25 mm")),
])
pocket8 = body.newObject("PartDesign::Pocket", "Pocket007")
pocket8.Profile = sketch9
pocket8.Length = 10
pocket8.Reversed = True

# Sketch on XZ plane
sketch10 = body.newObject("Sketcher::SketchObject", "Sketch009")
sketch10.AttachmentSupport = (doc.getObject("XZ_Plane"), [""])
sketch10.MapMode = "FlatFace"
sketch10.AttachmentOffset = App.Placement(Vector(0, 0, -3), App.Rotation())
sketch10.addGeometry([
    Part.LineSegment(Vector(-50, -12.5, 0), Vector(-50, 27.5, 0)),  # 0
    Part.ArcOfCircle(Part.Circle(Vector(-45.4, 27.5, 0), Vector(0, 0, 1), 4.6), math.radians(0), math.radians(180)),  # 1
    Part.LineSegment(Vector(-40.8, 27.5, 0), Vector(-40.8, -12.5, 0)),  # 2
    Part.ArcOfCircle(Part.Circle(Vector(-45.4, -12.5, 0), Vector(0, 0, 1), 4.6), math.radians(180), math.radians(360)),  # 3
    Part.LineSegment(Vector(12.2, -12.5, 0), Vector(12.2, 27.5, 0)),  # 4
    Part.ArcOfCircle(Part.Circle(Vector(16.9, 27.5, 0), Vector(0, 0, 1), 4.6), math.radians(0), math.radians(180)),  # 5
    Part.LineSegment(Vector(21.5, 27.5, 0), Vector(21.5, -12.5, 0)),  # 6
    Part.ArcOfCircle(Part.Circle(Vector(16.9, -12.5, 0), Vector(0, 0, 1), 4.6), math.radians(180), math.radians(360)),  # 7
], False)
sketch10.addConstraint([
    Sketcher.Constraint("Tangent", 0, 2, 1, 2),
    Sketcher.Constraint("Tangent", 1, 1, 2, 1),
    Sketcher.Constraint("Tangent", 2, 2, 3, 2),
    Sketcher.Constraint("Tangent", 3, 1, 0, 1),
    Sketcher.Constraint("Tangent", 4, 2, 5, 2),
    Sketcher.Constraint("Tangent", 5, 1, 6, 1),
    Sketcher.Constraint("Tangent", 6, 2, 7, 2),
    Sketcher.Constraint("Tangent", 7, 1, 4, 1),
    Sketcher.Constraint("Vertical", 0),
    Sketcher.Constraint("Vertical", 2),
    Sketcher.Constraint("Vertical", 4),
    Sketcher.Constraint("Vertical", 6),
    Sketcher.Constraint("Equal", 3, 5),
    Sketcher.Constraint("Horizontal", 1, 3, 5, 3),
    Sketcher.Constraint("Horizontal", 3, 3, 7, 3),
    Sketcher.Constraint("DistanceY", 0, 1, 0, 2, Q("40 mm")),
    Sketcher.Constraint("DistanceX", 0, 2, -1, 1, Q("50 mm")),
    Sketcher.Constraint("Radius", 1, Q("4.625 mm")),
    Sketcher.Constraint("DistanceX", 1, 1, 4, 2, Q("53 mm")),
    Sketcher.Constraint("DistanceY", -1, 1, 1, 3, Q("27.5 mm")),
])
pocket9 = body.newObject("PartDesign::Pocket", "Pocket008")
pocket9.Profile = sketch10
pocket9.Length = 10
pocket9.Reversed = True

# Sketch on XZ plane
sketch11 = body.newObject("Sketcher::SketchObject", "Sketch010")
sketch11.AttachmentSupport = (doc.getObject("XZ_Plane"), [""])
sketch11.MapMode = "FlatFace"
sketch11.AttachmentOffset = App.Placement(Vector(0, 0, -3), App.Rotation())
sketch11.addGeometry([
    Part.Circle(Vector(20.8, 37.5, 0), Vector(0, 0, 1), 1.5),
    Part.Circle(Vector(-49.2, -22.5, 0), Vector(0, 0, 1), 1.5),
    Part.Circle(Vector(-49.2, 37.5, 0), Vector(0, 0, 1), 1.5),
    Part.Circle(Vector(20.8, -22.5, 0), Vector(0, 0, 1), 1.5),
], False)
sketch11.addConstraint([
    Sketcher.Constraint("Equal", 0, 1),
    Sketcher.Constraint("Equal", 1, 2),
    Sketcher.Constraint("Equal", 2, 3),
    Sketcher.Constraint("Horizontal", 0, 3, 2, 3),
    Sketcher.Constraint("Horizontal", 1, 3, 3, 3),
    Sketcher.Constraint("Vertical", 1, 3, 2, 3),
    Sketcher.Constraint("Vertical", 0, 3, 3, 3),
    Sketcher.Constraint("Diameter", 0, Q("3.05 mm")),
    Sketcher.Constraint("DistanceX", 1, 3, 0, 3, Q("70 mm")),
    Sketcher.Constraint("DistanceY", 1, 3, 0, 3, Q("60 mm")),
    Sketcher.Constraint("DistanceY", -1, 1, 0, 3, Q("37.5 mm")),
    Sketcher.Constraint("DistanceX", -1, 1, 0, 3, Q("20.75 mm")),
])
doc.recompute()
hole = body.newObject("PartDesign::Hole", "Hole")
hole.Profile = sketch11
hole.ThreadType = "None"
hole.Diameter = 3.05
hole.DepthType = "Dimension"
hole.Depth = 100
hole.DrillPoint = "Flat"
hole.HoleCutType = "Countersink"
hole.HoleCutDiameter = 6.1
hole.HoleCutCountersinkAngle = 90
hole.Reversed = True

doc.recompute()
